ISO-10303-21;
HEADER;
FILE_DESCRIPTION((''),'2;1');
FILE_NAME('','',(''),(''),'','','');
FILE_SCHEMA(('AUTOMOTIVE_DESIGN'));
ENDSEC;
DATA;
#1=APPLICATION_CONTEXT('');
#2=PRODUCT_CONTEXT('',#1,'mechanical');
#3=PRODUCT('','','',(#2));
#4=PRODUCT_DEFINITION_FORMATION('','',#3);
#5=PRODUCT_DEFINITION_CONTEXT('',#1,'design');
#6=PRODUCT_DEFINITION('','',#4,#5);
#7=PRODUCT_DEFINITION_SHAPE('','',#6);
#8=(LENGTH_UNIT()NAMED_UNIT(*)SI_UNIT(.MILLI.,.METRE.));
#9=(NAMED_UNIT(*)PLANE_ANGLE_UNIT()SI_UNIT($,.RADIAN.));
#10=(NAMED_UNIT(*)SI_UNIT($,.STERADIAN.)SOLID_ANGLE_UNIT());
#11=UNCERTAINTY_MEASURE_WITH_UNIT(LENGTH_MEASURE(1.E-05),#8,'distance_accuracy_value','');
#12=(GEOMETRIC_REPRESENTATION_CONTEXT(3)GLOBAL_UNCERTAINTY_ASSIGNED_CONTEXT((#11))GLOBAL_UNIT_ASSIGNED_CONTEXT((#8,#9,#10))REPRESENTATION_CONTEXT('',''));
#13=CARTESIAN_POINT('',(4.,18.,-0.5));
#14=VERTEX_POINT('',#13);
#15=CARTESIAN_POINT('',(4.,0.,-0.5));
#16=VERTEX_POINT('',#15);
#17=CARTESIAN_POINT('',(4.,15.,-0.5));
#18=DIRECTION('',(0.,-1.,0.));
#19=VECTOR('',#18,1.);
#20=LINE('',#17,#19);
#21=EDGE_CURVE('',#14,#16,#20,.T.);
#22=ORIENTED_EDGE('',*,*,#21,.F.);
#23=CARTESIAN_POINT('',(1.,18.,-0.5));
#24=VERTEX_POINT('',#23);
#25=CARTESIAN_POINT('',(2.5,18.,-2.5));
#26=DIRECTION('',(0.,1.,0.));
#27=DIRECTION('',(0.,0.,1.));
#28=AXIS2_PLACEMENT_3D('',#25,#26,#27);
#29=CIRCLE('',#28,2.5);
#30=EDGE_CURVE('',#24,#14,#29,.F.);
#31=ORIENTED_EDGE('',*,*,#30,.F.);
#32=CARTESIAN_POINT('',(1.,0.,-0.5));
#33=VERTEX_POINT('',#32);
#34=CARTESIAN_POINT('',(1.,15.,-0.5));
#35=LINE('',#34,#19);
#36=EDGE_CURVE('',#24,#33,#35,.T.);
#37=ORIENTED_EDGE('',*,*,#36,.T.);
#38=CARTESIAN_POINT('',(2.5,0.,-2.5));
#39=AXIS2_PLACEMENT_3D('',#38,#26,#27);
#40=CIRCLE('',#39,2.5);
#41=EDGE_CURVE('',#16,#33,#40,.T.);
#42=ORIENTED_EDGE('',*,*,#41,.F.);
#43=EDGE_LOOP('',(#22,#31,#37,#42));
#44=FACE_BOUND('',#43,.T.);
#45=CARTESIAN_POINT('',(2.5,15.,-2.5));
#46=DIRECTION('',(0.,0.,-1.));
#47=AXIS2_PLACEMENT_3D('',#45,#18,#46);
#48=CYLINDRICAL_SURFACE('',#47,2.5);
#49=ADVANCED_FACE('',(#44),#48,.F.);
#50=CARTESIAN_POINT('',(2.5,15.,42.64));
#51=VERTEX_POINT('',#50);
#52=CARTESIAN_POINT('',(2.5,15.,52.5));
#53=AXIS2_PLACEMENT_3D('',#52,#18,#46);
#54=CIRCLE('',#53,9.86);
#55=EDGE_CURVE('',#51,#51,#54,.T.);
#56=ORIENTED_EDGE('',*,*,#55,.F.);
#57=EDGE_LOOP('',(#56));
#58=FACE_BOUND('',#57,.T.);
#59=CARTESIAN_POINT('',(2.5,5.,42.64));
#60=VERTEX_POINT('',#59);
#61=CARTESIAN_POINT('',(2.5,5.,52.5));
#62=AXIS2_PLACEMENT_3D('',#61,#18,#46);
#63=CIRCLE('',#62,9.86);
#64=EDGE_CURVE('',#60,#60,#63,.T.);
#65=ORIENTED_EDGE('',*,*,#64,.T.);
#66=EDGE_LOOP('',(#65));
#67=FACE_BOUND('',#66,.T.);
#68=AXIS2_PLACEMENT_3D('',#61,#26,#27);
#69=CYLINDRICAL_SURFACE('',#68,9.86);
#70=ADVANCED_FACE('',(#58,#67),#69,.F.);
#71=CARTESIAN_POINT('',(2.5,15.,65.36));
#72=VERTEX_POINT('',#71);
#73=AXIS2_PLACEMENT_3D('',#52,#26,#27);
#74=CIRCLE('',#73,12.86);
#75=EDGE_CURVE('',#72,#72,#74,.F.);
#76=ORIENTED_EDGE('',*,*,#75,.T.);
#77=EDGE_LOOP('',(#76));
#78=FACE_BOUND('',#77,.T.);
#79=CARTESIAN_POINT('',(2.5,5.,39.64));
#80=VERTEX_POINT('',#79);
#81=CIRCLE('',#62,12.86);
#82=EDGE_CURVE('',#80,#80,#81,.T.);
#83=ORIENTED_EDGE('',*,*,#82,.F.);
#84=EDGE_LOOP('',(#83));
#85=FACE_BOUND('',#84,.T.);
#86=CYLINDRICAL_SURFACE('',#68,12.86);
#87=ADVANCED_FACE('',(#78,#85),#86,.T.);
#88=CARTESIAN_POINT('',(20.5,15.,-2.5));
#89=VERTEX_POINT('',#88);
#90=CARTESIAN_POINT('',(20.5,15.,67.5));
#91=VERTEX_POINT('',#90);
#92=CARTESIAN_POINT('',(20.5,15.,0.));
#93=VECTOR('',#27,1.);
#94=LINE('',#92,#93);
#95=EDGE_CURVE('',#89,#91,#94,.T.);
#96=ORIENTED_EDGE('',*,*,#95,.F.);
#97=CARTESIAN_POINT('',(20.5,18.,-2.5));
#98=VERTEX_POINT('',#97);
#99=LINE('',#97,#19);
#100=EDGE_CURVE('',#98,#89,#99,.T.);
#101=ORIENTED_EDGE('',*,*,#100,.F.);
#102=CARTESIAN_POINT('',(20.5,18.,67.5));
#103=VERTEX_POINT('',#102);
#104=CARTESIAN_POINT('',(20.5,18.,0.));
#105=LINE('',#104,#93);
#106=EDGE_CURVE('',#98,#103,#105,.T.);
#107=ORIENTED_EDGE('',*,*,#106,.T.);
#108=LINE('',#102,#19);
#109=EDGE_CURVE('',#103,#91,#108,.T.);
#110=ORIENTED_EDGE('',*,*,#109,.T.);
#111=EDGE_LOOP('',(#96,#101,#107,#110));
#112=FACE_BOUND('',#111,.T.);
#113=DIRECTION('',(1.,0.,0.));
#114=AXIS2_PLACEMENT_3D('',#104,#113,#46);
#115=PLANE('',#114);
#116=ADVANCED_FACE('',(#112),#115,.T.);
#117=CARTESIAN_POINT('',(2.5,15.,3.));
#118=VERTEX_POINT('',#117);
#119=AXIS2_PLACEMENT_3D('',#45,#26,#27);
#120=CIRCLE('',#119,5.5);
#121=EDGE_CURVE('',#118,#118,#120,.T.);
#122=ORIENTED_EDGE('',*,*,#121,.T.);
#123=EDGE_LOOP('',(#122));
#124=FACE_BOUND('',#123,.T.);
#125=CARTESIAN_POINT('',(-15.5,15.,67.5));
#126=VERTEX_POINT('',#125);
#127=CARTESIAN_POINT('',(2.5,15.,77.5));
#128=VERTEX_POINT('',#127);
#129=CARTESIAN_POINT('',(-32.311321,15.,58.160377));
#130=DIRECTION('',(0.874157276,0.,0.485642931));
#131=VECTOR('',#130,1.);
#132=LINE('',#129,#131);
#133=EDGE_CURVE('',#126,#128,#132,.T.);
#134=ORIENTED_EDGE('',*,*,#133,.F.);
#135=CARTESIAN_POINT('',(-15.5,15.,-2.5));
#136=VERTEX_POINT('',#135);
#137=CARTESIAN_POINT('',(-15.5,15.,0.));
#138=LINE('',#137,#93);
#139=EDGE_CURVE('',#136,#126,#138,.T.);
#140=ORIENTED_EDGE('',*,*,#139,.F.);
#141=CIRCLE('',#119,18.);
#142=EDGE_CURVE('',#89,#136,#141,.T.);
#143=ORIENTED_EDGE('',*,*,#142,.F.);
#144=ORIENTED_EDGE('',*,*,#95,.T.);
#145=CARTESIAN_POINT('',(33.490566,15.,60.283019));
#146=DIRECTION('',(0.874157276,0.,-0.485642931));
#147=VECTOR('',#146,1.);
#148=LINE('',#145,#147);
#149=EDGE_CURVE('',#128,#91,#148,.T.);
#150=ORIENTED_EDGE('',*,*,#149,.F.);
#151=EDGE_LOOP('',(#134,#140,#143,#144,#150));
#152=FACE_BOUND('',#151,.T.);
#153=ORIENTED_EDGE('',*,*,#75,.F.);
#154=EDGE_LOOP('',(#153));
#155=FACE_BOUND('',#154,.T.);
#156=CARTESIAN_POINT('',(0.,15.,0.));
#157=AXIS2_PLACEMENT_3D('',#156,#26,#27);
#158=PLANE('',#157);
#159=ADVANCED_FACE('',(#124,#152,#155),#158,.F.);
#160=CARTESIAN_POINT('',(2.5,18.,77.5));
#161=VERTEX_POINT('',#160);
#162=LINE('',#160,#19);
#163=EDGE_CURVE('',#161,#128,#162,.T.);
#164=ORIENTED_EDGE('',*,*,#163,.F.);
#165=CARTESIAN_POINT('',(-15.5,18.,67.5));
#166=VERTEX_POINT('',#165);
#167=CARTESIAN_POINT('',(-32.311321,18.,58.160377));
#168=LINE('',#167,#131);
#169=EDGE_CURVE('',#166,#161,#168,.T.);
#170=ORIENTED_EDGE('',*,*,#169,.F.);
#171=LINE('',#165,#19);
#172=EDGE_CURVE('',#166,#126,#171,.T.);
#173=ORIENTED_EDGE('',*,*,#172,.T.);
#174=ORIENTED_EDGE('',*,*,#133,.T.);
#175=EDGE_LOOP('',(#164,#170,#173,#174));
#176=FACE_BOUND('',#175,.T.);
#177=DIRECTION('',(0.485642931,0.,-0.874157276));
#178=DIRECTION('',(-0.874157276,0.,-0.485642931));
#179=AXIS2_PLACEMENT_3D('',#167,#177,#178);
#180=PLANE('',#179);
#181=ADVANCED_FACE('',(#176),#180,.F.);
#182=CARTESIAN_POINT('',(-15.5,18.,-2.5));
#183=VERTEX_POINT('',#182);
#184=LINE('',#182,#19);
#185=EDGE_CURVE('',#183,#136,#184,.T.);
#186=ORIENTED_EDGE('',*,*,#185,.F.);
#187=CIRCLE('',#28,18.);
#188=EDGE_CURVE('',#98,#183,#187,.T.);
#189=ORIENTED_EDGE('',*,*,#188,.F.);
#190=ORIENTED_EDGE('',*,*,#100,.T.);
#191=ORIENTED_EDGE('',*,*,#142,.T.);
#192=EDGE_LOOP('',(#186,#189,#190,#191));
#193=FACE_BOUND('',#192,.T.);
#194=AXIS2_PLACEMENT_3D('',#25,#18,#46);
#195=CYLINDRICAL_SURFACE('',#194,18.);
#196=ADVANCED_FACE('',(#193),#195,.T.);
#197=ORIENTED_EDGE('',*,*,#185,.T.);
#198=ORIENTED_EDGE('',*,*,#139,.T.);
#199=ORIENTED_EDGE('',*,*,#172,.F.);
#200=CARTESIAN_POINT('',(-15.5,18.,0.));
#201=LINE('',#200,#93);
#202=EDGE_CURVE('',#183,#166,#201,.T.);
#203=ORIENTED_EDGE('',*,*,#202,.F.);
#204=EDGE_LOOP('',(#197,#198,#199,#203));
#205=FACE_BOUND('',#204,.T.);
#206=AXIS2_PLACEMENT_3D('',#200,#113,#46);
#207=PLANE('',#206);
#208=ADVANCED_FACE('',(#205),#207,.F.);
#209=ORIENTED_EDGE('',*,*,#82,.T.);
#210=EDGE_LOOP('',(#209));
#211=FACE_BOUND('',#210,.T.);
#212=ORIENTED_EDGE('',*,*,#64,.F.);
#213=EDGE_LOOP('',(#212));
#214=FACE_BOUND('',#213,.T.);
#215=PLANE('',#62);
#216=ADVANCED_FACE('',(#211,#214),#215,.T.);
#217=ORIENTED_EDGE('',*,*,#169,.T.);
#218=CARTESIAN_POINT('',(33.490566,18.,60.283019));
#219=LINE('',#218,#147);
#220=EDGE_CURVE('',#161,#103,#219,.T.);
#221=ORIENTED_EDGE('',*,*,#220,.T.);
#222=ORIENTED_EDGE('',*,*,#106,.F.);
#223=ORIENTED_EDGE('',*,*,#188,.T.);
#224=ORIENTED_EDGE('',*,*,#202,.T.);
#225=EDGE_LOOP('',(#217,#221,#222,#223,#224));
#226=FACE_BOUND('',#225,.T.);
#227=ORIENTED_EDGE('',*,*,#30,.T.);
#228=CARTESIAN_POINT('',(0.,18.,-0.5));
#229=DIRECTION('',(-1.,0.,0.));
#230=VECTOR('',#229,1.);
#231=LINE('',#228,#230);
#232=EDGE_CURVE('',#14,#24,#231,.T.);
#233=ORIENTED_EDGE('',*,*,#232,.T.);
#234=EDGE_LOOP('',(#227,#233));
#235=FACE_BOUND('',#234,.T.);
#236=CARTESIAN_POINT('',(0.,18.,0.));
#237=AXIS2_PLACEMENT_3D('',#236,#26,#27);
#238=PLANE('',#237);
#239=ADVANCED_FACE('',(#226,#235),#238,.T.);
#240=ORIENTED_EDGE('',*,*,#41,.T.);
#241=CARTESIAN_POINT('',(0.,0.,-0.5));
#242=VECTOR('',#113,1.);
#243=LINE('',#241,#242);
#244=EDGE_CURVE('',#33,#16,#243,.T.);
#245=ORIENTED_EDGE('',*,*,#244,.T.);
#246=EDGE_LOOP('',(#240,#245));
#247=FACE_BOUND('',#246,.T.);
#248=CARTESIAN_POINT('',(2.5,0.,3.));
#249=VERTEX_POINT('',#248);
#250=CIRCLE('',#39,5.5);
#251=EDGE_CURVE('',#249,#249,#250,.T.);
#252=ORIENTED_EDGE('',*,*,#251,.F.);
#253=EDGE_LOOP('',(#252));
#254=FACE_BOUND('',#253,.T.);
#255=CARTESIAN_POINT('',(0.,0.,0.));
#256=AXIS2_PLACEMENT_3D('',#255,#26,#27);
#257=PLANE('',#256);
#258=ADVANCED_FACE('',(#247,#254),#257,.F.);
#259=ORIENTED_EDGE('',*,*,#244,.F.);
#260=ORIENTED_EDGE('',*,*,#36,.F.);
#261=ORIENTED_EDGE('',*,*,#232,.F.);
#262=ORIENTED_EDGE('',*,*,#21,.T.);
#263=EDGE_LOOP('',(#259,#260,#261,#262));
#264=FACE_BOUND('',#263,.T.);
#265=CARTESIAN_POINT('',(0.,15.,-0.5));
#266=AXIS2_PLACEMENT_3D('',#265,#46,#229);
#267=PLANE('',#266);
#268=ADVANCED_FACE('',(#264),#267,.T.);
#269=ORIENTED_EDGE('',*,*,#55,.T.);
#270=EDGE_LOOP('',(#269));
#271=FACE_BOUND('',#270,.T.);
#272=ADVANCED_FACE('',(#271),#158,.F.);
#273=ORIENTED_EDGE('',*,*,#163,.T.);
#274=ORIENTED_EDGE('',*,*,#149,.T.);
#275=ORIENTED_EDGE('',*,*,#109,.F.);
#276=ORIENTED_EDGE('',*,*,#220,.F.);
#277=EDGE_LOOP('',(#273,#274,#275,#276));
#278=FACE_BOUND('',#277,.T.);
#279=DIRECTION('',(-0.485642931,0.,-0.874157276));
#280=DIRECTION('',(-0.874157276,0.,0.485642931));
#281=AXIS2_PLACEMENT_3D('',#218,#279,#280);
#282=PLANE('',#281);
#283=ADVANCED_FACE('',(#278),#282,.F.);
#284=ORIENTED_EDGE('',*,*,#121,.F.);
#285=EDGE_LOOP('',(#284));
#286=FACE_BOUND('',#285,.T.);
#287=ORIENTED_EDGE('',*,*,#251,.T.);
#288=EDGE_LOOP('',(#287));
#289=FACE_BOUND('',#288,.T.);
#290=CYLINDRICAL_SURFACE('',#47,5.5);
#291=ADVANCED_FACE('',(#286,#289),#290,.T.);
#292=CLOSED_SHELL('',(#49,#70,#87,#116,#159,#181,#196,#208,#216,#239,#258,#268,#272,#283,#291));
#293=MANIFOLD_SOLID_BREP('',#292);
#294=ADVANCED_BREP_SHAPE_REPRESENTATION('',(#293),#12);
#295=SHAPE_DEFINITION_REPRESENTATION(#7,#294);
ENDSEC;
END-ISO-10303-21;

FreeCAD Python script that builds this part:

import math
import FreeCAD as App
import Part
import Sketcher
Q = App.Units.Quantity

doc = App.newDocument("Part")
body = doc.addObject("PartDesign::Body", "Body")

# Sketch on XZ plane
sketch1 = doc.addObject("Sketcher::SketchObject", "Sketch")
body.addObject(sketch1)
sketch1.AttachmentSupport = (doc.XZ_Plane, [""])
sketch1.MapMode = "FlatFace"
sketch1.addGeometry(Part.Circle(App.Vector(2.5, -2.5, 0), App.Vector(0, 0, 1), 5.5), False)
sketch1.addGeometry(Part.ArcOfCircle(Part.Circle(App.Vector(2.5, -2.5, 0), App.Vector(0, 0, 1), 2.5), math.radians(127), math.radians(413)), False)
sketch1.addGeometry(Part.LineSegment(App.Vector(4, -0.5, 0), App.Vector(1, -0.5, 0)), False)
sketch1.addConstraint(Sketcher.Constraint("Coincident", 1, 1, 2, 2))
sketch1.addConstraint(Sketcher.Constraint("Coincident", 2, 1, 1, 2))
sketch1.addConstraint(Sketcher.Constraint("Horizontal", 2))
sketch1.addConstraint(Sketcher.Constraint("Coincident", 1, 3, 0, 3))
sketch1.addConstraint(Sketcher.Constraint("Diameter", 0, Q("11 mm")))
sketch1.addConstraint(Sketcher.Constraint("Radius", 1, Q("2.5 mm")))
sketch1.addConstraint(Sketcher.Constraint("DistanceX", 2, 2, 2, 1, Q("3 mm")))
sketch1.addConstraint(Sketcher.Constraint("DistanceX", -1, 1, 1, 1, Q("1 mm")))
sketch1.addConstraint(Sketcher.Constraint("DistanceY", 0, 3, -1, 1, Q("2.5 mm")))
pad1 = doc.addObject("PartDesign::Pad", "Pad")
body.addObject(pad1)
pad1.Profile = sketch1
pad1.Length = 15
pad1.Reversed = True

# Sketch on XZ plane
sketch2 = doc.addObject("Sketcher::SketchObject", "Sketch001")
body.addObject(sketch2)
sketch2.AttachmentSupport = (doc.XZ_Plane, [""])
sketch2.MapMode = "FlatFace"
sketch2.AttachmentOffset = App.Placement(App.Vector(0, 0, -15), App.Rotation())
sketch2.addGeometry(Part.ArcOfCircle(Part.Circle(App.Vector(2.5, -2.5, 0), App.Vector(0, 0, 1), 18), math.radians(180), math.radians(360)), False)
sketch2.addGeometry(Part.LineSegment(App.Vector(-15.5, -2.5, 0), App.Vector(-15.5, 67.5, 0)), False)
sketch2.addGeometry(Part.LineSegment(App.Vector(-15.5, 67.5, 0), App.Vector(2.5, 77.5, 0)), False)
sketch2.addGeometry(Part.LineSegment(App.Vector(2.5, 77.5, 0), App.Vector(20.5, 67.5, 0)), False)
sketch2.addGeometry(Part.LineSegment(App.Vector(20.5, 67.5, 0), App.Vector(20.5, -2.5, 0)), False)
sketch2.addGeometry(Part.ArcOfCircle(Part.Circle(App.Vector(2.5, -2.5, 0), App.Vector(0, 0, 1), 2.5), math.radians(127), math.radians(413)), False)
sketch2.addGeometry(Part.LineSegment(App.Vector(4, -0.5, 0), App.Vector(1, -0.5, 0)), False)
sketch2.addConstraint(Sketcher.Constraint("Tangent", 0, 1, 1, 1))
sketch2.addConstraint(Sketcher.Constraint("Coincident", 1, 2, 2, 1))
sketch2.addConstraint(Sketcher.Constraint("Coincident", 2, 2, 3, 1))
sketch2.addConstraint(Sketcher.Constraint("Coincident", 3, 2, 4, 1))
sketch2.addConstraint(Sketcher.Constraint("Tangent", 4, 2, 0, 2))
sketch2.addConstraint(Sketcher.Constraint("Coincident", 5, 1, 6, 2))
sketch2.addConstraint(Sketcher.Constraint("Coincident", 6, 1, 5, 2))
sketch2.addConstraint(Sketcher.Constraint("Vertical", 1))
sketch2.addConstraint(Sketcher.Constraint("Vertical", 4))
sketch2.addConstraint(Sketcher.Constraint("Horizontal", 6))
sketch2.addConstraint(Sketcher.Constraint("Coincident", 5, 3, 0, 3))
sketch2.addConstraint(Sketcher.Constraint("Horizontal", 1, 2, 3, 2))
sketch2.addConstraint(Sketcher.Constraint("Vertical", 5, 3, 2, 2))
sketch2.addConstraint(Sketcher.Constraint("Radius", 0, Q("18 mm")))
sketch2.addConstraint(Sketcher.Constraint("Radius", 5, Q("2.5 mm")))
sketch2.addConstraint(Sketcher.Constraint("DistanceX", 6, 2, 6, 1, Q("3 mm")))
sketch2.addConstraint(Sketcher.Constraint("DistanceY", 1, 1, 1, 2, Q("70 mm")))
sketch2.addConstraint(Sketcher.Constraint("DistanceX", -1, 1, 5, 1, Q("1 mm")))
sketch2.addConstraint(Sketcher.Constraint("DistanceY", 1, 2, 2, 2, Q("10 mm")))
sketch2.addConstraint(Sketcher.Constraint("DistanceY", 0, 3, -1, 1, Q("2.5 mm")))
pad2 = doc.addObject("PartDesign::Pad", "Pad001")
body.addObject(pad2)
pad2.Profile = sketch2
pad2.Length = 3
pad2.Reversed = True

# Sketch on XZ plane
sketch3 = doc.addObject("Sketcher::SketchObject", "Sketch002")
body.addObject(sketch3)
sketch3.AttachmentSupport = (doc.XZ_Plane, [""])
sketch3.MapMode = "FlatFace"
sketch3.AttachmentOffset = App.Placement(App.Vector(0, 0, -15), App.Rotation())
sketch3.addGeometry(Part.Circle(App.Vector(2, 52, 0), App.Vector(0, 0, 1), 13), False)
sketch3.addGeometry(Part.Circle(App.Vector(2, 52, 0), App.Vector(0, 0, 1), 10), False)
sketch3.addConstraint(Sketcher.Constraint("Coincident", 1, 3, 0, 3))
sketch3.addConstraint(Sketcher.Constraint("Diameter", 0, Q("25.72 mm")))
sketch3.addConstraint(Sketcher.Constraint("Diameter", 1, Q("19.72 mm")))
sketch3.addConstraint(Sketcher.Constraint("DistanceX", -1, 1, 0, 3, Q("2.5 mm")))
sketch3.addConstraint(Sketcher.Constraint("DistanceY", -1, 1, 0, 3, Q("52.5 mm")))
pad3 = doc.addObject("PartDesign::Pad", "Pad002")
body.addObject(pad3)
pad3.Profile = sketch3
pad3.Length = 10

doc.recompute()
